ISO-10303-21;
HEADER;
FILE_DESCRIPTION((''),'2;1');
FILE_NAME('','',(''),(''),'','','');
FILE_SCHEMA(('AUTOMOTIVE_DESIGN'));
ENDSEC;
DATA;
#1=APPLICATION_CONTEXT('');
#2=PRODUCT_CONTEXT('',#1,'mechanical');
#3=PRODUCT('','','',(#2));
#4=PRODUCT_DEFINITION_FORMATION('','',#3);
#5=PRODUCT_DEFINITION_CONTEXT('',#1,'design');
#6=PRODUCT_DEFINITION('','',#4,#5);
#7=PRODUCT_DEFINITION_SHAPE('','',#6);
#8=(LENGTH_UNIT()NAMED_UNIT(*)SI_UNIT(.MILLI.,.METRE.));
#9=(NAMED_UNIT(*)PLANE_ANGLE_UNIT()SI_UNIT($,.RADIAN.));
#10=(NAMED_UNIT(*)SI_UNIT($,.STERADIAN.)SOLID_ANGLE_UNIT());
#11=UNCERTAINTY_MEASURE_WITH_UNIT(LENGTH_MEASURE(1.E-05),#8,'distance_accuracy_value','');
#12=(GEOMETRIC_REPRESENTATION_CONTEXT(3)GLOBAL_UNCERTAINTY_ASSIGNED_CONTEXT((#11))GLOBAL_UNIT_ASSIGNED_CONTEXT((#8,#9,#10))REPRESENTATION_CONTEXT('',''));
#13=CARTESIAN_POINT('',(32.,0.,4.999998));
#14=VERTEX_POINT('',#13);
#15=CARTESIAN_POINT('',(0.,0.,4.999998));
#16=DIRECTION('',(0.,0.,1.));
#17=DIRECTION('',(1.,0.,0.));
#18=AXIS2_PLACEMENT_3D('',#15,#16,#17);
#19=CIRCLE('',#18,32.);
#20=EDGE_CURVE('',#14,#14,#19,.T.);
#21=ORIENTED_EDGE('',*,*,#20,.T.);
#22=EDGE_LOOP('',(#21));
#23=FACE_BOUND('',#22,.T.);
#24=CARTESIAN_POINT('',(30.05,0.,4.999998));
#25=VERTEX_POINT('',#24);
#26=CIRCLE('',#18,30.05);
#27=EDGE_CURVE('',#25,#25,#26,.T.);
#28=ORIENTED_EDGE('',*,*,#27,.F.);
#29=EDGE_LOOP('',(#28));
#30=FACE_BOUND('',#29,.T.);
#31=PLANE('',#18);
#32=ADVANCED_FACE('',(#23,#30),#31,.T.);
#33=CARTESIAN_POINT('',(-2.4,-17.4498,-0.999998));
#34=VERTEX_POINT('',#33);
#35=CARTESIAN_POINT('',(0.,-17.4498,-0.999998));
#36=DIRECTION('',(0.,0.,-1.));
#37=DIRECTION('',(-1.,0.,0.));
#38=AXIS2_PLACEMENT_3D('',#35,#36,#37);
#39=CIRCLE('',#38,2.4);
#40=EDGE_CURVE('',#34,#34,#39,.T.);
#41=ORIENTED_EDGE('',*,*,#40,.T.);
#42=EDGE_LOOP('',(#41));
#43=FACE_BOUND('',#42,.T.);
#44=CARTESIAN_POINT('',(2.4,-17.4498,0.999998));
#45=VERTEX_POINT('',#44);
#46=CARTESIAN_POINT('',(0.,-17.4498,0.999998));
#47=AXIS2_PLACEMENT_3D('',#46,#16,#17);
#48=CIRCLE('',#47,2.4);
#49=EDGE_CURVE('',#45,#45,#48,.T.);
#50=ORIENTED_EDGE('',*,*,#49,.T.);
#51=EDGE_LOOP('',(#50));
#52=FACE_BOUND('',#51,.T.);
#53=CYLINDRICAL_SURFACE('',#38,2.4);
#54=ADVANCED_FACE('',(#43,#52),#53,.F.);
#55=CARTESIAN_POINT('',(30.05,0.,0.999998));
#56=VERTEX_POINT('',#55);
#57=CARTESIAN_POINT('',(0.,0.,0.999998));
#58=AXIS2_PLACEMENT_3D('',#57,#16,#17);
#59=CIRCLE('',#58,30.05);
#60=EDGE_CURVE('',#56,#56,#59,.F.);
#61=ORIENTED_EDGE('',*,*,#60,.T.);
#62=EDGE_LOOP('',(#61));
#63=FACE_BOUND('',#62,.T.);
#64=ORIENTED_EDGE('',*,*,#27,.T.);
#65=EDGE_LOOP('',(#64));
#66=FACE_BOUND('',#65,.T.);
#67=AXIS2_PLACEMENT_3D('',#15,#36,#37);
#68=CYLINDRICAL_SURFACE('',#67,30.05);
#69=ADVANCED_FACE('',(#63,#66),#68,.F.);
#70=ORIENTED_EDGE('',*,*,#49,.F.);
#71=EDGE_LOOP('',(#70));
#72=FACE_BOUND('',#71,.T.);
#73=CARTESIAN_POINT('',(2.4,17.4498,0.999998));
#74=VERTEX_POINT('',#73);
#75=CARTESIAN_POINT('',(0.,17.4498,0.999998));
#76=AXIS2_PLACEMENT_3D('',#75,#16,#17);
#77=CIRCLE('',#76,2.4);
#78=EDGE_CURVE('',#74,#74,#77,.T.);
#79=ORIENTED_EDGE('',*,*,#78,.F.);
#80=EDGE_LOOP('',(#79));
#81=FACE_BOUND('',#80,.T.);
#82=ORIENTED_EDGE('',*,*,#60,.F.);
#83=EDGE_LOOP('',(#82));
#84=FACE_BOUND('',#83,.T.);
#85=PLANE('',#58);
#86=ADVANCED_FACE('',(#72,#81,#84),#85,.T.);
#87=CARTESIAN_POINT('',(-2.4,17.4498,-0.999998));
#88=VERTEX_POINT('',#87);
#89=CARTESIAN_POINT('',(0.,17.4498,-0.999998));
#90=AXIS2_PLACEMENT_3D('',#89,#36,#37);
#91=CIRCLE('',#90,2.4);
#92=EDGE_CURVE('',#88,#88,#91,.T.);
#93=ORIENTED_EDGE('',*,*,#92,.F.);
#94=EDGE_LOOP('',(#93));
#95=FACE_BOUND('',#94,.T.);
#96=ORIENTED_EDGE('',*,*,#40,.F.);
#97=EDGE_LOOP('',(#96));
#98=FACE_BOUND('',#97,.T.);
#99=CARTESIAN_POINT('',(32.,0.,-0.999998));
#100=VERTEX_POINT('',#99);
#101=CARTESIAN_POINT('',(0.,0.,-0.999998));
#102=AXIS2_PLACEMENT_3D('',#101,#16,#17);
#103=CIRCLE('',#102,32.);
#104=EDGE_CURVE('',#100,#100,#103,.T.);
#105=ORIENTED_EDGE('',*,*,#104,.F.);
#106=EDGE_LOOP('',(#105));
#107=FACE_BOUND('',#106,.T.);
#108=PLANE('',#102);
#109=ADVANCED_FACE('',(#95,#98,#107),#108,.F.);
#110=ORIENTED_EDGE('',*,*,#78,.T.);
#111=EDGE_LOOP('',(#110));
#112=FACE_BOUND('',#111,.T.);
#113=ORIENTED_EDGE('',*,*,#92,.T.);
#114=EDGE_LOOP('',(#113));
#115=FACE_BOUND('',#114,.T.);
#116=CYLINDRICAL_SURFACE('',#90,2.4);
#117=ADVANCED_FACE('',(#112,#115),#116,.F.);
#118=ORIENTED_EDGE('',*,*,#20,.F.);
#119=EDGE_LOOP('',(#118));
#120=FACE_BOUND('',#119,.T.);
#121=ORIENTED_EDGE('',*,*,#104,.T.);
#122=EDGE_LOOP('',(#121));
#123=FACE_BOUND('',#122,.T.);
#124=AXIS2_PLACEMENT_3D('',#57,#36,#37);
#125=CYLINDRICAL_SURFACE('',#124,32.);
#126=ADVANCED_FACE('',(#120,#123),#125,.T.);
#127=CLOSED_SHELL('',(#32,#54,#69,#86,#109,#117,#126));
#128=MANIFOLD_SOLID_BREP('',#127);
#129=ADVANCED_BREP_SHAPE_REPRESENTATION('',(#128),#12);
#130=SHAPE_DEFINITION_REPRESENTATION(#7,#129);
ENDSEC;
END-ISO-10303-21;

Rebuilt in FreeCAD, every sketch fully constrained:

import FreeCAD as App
import Part
import Sketcher

V = App.Vector

doc = App.newDocument("Part")
body = doc.addObject("PartDesign::Body", "Body")

# Sketch on XY plane
sketch1 = body.newObject("Sketcher::SketchObject", "Sketch")
sketch1.AttachmentSupport = (doc.getObject("XY_Plane"), [""])
sketch1.MapMode = "FlatFace"
sketch1.addGeometry(Part.Circle(V(0, 0, 0), V(0, 0, 1), 32), False)
sketch1.addConstraint([
    Sketcher.Constraint("Coincident", 0, 3, -1, 1),
    Sketcher.Constraint("Diameter", 0, 64.0),
])
pad1 = body.newObject("PartDesign::Pad", "Pad")
pad1.Profile = sketch1
pad1.Length = 1.999996
pad1.Midplane = True

# Sketch on XY plane
sketch2 = body.newObject("Sketcher::SketchObject", "Sketch001")
sketch2.AttachmentSupport = (doc.getObject("XY_Plane"), [""])
sketch2.MapMode = "FlatFace"
sketch2.AttachmentOffset = App.Placement(V(0, 0, 0.999998), App.Rotation())
sketch2.addGeometry([
    Part.Circle(V(0, 0, 0), V(0, 0, 1), 32),
    Part.Circle(V(0, 0, 0), V(0, 0, 1), 30),
], False)
sketch2.addConstraint([
    Sketcher.Constraint("Coincident", 0, 3, -1, 1),
    Sketcher.Constraint("Coincident", 1, 3, -1, 1),
    Sketcher.Constraint("Diameter", 0, 64.0),
    Sketcher.Constraint("Diameter", 1, 60.1),
])
pad2 = body.newObject("PartDesign::Pad", "Pad001")
pad2.Profile = sketch2
pad2.Length = 4

# Sketch on XY plane
sketch3 = body.newObject("Sketcher::SketchObject", "Sketch002")
sketch3.AttachmentSupport = (doc.getObject("XY_Plane"), [""])
sketch3.MapMode = "FlatFace"
sketch3.AttachmentOffset = App.Placement(V(0, 0, -0.999998), App.Rotation())
sketch3.addGeometry([
    Part.Circle(V(0, 17.4, 0), V(0, 0, 1), 2.4),
    Part.Circle(V(0, -17.4, 0), V(0, 0, 1), 2.4),
], False)
sketch3.addConstraint([
    Sketcher.Constraint("Equal", 0, 1),
    Sketcher.Constraint("Symmetric", 0, 3, 1, 3, -1, 1),
    Sketcher.Constraint("PointOnObject", 0, 3, -2),
    Sketcher.Constraint("Diameter", 0, 4.8),
    Sketcher.Constraint("DistanceY", -1, 1, 0, 3, 17.4498),
])
doc.recompute()
hole = body.newObject("PartDesign::Hole", "Hole")
hole.Profile = sketch3
hole.ThreadType = "None"
hole.Diameter = 4.8
hole.DepthType = "Dimension"
hole.Depth = 1.999996
hole.DrillPoint = "Flat"
hole.Reversed = True

doc.recompute()
